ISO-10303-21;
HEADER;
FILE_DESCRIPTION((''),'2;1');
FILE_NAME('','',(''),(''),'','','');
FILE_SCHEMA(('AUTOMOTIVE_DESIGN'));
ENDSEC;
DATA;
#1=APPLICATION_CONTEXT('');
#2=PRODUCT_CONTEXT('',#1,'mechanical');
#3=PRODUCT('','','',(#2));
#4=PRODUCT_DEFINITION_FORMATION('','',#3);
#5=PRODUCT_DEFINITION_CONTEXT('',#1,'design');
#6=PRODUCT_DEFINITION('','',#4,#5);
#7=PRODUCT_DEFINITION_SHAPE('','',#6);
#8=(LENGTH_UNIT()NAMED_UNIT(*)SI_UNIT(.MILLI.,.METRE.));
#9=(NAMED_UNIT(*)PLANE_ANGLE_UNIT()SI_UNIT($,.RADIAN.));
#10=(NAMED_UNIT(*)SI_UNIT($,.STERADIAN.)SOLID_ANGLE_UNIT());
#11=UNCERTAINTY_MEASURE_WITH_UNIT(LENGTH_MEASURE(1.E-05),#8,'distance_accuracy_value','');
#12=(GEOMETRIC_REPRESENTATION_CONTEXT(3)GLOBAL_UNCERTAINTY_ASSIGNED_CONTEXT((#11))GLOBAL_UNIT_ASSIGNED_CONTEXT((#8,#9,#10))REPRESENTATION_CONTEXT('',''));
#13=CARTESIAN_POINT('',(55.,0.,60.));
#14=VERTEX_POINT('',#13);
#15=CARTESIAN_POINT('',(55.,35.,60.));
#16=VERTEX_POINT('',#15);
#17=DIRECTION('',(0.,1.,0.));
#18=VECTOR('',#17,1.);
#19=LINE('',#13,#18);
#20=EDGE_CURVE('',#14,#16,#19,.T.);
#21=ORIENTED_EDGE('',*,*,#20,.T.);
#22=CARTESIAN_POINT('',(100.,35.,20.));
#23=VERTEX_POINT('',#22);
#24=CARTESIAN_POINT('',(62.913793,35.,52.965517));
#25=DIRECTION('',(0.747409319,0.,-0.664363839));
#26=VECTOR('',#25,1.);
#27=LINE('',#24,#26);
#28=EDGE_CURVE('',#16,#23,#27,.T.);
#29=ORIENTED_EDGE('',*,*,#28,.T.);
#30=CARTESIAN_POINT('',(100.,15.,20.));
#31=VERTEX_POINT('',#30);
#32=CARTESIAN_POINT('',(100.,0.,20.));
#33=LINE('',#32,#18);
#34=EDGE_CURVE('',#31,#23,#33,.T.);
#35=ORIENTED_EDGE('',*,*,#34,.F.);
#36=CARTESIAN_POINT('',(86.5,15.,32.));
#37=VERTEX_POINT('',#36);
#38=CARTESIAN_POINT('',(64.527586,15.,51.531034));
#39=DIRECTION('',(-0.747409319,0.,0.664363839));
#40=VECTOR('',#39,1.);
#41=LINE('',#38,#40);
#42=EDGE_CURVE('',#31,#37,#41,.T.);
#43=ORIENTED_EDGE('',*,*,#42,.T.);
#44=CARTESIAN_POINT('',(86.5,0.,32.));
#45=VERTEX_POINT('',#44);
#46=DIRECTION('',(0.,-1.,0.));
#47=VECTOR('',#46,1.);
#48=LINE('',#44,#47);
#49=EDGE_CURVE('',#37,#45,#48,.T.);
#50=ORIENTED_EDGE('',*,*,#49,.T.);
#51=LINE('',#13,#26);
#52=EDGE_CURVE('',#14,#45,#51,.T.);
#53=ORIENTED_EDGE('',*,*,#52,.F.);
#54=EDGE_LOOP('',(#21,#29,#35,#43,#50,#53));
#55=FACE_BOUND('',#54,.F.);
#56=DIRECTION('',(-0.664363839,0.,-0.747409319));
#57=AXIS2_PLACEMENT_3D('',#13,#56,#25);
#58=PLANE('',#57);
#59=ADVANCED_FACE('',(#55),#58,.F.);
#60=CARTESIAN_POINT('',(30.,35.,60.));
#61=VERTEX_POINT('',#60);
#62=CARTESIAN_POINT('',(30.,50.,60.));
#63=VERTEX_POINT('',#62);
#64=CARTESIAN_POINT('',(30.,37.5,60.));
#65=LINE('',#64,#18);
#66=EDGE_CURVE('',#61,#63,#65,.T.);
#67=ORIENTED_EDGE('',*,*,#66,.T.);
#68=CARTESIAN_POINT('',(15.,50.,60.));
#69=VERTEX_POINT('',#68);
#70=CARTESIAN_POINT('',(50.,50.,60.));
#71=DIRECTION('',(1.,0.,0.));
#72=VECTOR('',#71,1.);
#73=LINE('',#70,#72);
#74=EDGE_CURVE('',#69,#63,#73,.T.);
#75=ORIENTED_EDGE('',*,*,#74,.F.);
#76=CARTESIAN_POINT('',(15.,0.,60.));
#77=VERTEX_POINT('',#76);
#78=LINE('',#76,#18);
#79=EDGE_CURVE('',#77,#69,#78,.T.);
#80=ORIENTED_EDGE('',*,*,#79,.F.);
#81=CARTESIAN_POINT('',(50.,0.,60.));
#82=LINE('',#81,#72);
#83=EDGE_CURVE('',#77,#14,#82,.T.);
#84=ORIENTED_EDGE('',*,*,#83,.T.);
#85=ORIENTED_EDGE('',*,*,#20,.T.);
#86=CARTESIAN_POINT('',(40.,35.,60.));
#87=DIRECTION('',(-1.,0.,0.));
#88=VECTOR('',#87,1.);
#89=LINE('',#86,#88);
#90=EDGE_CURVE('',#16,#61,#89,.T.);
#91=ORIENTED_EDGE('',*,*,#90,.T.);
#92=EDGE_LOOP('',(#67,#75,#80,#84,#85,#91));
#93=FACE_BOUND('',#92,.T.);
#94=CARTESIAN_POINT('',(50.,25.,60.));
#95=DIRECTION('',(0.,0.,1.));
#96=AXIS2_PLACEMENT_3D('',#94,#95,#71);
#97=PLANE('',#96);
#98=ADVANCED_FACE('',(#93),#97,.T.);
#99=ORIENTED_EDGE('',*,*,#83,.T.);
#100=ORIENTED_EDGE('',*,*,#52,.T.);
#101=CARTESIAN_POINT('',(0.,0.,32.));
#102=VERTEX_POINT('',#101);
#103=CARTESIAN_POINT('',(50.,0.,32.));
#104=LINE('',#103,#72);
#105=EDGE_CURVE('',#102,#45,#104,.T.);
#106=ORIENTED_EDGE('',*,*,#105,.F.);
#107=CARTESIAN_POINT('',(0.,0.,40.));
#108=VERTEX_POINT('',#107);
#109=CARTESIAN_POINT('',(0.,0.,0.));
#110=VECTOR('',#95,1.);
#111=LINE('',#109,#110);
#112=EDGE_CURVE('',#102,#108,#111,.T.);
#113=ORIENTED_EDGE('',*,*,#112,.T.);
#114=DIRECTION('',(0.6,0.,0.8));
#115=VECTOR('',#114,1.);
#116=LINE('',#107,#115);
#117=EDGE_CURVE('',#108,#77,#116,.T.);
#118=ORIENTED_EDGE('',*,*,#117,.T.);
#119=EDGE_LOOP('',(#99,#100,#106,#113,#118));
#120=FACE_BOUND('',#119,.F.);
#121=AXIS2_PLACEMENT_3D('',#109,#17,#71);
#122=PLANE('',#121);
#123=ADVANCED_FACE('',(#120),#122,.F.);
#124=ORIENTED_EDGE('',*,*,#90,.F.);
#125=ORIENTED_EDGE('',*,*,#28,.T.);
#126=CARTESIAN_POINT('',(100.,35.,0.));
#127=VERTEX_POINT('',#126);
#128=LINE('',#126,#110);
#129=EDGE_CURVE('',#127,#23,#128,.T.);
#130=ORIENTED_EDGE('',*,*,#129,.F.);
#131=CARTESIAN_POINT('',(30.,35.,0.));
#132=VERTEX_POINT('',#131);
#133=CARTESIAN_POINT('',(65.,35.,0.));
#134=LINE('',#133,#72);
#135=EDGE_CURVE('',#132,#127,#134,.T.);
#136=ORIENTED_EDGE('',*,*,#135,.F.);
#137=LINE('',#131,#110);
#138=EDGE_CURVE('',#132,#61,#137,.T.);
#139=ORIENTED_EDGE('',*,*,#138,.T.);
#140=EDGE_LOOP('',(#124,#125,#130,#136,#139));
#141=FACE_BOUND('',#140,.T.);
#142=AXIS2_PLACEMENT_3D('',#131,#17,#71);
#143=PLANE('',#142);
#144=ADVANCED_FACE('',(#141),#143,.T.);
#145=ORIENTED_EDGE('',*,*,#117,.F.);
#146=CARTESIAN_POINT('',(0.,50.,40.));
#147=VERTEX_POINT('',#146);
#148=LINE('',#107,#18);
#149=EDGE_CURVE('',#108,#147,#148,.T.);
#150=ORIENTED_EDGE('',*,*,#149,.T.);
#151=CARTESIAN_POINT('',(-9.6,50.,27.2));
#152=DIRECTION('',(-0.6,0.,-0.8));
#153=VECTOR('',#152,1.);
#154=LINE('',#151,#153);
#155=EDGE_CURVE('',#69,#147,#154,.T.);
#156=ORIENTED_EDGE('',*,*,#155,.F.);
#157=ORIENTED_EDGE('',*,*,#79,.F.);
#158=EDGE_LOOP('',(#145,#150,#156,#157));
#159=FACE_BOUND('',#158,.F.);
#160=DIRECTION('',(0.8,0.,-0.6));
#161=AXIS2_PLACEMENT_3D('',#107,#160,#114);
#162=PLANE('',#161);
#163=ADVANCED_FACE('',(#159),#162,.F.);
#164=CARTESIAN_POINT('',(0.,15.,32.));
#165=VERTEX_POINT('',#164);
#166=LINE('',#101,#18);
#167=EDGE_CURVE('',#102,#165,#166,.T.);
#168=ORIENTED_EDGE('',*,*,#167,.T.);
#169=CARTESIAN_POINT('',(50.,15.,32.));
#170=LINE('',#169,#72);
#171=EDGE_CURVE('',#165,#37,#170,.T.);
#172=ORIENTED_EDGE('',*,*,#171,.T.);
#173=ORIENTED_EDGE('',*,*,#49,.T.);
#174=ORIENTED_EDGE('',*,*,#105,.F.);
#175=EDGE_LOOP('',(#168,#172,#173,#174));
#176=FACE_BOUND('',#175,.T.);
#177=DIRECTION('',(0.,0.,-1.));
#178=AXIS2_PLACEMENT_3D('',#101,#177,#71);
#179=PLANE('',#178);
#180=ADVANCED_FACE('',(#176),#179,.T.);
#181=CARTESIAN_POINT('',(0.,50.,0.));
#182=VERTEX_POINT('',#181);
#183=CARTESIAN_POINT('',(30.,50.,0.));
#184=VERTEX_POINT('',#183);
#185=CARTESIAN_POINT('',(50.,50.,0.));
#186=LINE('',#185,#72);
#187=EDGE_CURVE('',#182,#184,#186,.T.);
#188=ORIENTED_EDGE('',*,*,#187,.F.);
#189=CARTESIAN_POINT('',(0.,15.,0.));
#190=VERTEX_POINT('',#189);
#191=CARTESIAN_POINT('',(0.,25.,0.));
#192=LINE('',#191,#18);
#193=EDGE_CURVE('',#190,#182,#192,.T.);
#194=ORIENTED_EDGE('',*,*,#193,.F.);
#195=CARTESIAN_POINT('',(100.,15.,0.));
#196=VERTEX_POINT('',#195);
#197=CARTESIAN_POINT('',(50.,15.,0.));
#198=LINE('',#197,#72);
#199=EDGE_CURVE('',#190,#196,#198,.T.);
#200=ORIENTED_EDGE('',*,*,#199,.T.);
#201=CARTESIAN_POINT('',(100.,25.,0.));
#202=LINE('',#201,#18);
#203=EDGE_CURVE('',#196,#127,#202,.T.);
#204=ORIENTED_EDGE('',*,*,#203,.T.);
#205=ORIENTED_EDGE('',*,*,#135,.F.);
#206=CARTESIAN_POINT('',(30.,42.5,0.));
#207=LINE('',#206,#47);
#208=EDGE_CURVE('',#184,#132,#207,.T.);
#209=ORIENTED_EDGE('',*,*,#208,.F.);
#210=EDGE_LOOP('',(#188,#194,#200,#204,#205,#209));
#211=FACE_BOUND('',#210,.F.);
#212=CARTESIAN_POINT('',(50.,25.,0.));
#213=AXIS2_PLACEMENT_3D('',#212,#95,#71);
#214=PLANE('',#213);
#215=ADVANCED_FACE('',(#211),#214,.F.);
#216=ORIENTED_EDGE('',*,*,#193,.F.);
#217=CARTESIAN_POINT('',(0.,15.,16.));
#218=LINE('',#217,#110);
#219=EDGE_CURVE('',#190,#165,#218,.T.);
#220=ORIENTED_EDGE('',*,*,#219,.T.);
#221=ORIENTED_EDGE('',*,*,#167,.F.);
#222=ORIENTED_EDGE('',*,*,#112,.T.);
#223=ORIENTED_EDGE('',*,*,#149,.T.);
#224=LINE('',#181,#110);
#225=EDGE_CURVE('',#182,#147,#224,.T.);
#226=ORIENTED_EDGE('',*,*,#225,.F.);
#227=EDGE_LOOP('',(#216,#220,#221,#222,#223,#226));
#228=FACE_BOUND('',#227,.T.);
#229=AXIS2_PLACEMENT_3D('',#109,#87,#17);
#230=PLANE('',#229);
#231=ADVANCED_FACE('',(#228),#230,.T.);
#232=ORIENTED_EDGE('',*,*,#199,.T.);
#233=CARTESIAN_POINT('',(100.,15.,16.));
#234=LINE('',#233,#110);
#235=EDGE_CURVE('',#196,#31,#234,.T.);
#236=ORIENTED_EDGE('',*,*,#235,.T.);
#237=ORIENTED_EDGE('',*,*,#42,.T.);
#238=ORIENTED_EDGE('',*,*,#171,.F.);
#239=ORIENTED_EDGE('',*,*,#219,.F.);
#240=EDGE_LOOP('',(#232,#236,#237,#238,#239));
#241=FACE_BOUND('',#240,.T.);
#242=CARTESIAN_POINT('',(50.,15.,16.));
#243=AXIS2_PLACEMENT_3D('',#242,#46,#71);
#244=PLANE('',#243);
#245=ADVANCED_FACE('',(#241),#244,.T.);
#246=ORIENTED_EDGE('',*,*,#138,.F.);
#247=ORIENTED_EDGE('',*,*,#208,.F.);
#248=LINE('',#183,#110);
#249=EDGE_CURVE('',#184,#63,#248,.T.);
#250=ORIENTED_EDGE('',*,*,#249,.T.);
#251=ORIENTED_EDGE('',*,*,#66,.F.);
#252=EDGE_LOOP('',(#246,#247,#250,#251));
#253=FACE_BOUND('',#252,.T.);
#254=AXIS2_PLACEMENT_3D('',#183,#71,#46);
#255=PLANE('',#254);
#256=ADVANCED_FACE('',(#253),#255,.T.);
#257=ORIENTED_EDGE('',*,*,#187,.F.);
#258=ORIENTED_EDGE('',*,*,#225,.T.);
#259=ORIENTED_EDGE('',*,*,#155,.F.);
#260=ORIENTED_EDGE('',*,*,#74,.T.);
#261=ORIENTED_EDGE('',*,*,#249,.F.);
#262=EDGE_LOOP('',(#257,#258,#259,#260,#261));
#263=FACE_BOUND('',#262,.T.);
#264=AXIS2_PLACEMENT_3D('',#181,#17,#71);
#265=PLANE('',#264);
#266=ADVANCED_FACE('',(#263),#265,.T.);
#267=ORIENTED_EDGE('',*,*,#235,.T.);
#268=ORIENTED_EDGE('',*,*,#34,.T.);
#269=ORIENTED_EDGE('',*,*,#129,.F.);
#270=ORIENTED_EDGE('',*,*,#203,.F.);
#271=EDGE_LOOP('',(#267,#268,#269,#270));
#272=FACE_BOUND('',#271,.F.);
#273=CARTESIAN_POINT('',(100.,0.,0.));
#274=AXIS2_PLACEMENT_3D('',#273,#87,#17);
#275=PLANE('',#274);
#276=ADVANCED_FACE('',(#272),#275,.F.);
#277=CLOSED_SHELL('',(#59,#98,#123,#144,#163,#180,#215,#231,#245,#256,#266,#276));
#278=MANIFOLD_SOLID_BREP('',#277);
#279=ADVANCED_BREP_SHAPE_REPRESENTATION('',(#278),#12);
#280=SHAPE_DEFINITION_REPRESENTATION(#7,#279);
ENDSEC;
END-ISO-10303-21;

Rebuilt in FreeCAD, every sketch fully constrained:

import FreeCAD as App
import Part
import Sketcher


def add_polygon(sketch, points):
    """Adds a closed chain of lines whose ends are joined by coincident constraints."""
    first, n = sketch.GeometryCount, len(points)
    for a, b in zip(points, points[1:] + points[:1]):
        sketch.addGeometry(Part.LineSegment(App.Vector(*a, 0), App.Vector(*b, 0)), False)
    for i in range(n):
        sketch.addConstraint(Sketcher.Constraint("Coincident", first + i, 2, first + (i + 1) % n, 1))

doc = App.newDocument("Part")
body = doc.addObject("PartDesign::Body", "Body")

# Sketch on XY plane
sketch1 = body.newObject("Sketcher::SketchObject", "Sketch")
sketch1.AttachmentSupport = (doc.getObject("XY_Plane"), [""])
sketch1.MapMode = "FlatFace"
add_polygon(sketch1, [(0, 50), (0, 0), (100, 0), (100, 50)])  # lines 0-3
sketch1.addConstraint([
    Sketcher.Constraint("Vertical", 0),
    Sketcher.Constraint("Horizontal", 1),
    Sketcher.Constraint("Vertical", 2),
    Sketcher.Constraint("Horizontal", 3),
    Sketcher.Constraint("Coincident", 0, 2, -1, 1),
    Sketcher.Constraint("DistanceX", 1, 1, 1, 2, 100.0),
    Sketcher.Constraint("DistanceY", 0, 2, 0, 1, 50.0),
])
pad1 = body.newObject("PartDesign::Pad", "Pad")
pad1.Profile = sketch1
pad1.Length = 60

# Sketch on XZ plane
sketch2 = body.newObject("Sketcher::SketchObject", "Sketch001")
sketch2.AttachmentSupport = (doc.getObject("XZ_Plane"), [""])
sketch2.MapMode = "FlatFace"
add_polygon(sketch2, [(15, 60), (0, 60), (0, 40)])  # lines 0-2
add_polygon(sketch2, [(55, 60), (100, 20), (100, 60)])  # lines 3-5
sketch2.addConstraint([
    Sketcher.Constraint("Horizontal", 0),
    Sketcher.Constraint("Vertical", 1),
    Sketcher.Constraint("Vertical", 4),
    Sketcher.Constraint("Horizontal", 5),
    Sketcher.Constraint("PointOnObject", 0, 2, -2),
    Sketcher.Constraint("Horizontal", 2, 2, 4, 2),
    Sketcher.Constraint("DistanceX", 0, 2, 0, 1, 15.0),
    Sketcher.Constraint("DistanceX", 5, 2, 5, 1, 45.0),
    Sketcher.Constraint("DistanceY", 1, 2, 1, 1, 20.0),
    Sketcher.Constraint("DistanceY", 4, 1, 4, 2, 40.0),
    Sketcher.Constraint("DistanceY", -1, 1, 0, 2, 60.0),
    Sketcher.Constraint("DistanceX", -1, 1, 3, 2, 100.0),
])
pocket1 = body.newObject("PartDesign::Pocket", "Pocket")
pocket1.Profile = sketch2
pocket1.Type = "ThroughAll"

# Sketch on XZ plane
sketch3 = body.newObject("Sketcher::SketchObject", "Sketch002")
sketch3.AttachmentSupport = (doc.getObject("XZ_Plane"), [""])
sketch3.MapMode = "FlatFace"
add_polygon(sketch3, [(0, 32), (0, 0), (100, 0), (100, 32)])  # lines 0-3
sketch3.addConstraint([
    Sketcher.Constraint("Vertical", 0),
    Sketcher.Constraint("Horizontal", 1),
    Sketcher.Constraint("Vertical", 2),
    Sketcher.Constraint("Horizontal", 3),
    Sketcher.Constraint("Coincident", 0, 2, -1, 1),
    Sketcher.Constraint("DistanceX", 1, 1, 1, 2, 100.0),
    Sketcher.Constraint("DistanceY", 0, 2, 0, 1, 32.0),
])
pocket2 = body.newObject("PartDesign::Pocket", "Pocket001")
pocket2.Profile = sketch3
pocket2.Length = 15

# Sketch on XY plane
sketch4 = body.newObject("Sketcher::SketchObject", "Sketch003")
sketch4.AttachmentSupport = (doc.getObject("XY_Plane"), [""])
sketch4.MapMode = "FlatFace"
add_polygon(sketch4, [(30, 35), (30, 50), (100, 50), (100, 35)])  # lines 0-3
sketch4.addConstraint([
    Sketcher.Constraint("Vertical", 0),
    Sketcher.Constraint("Horizontal", 1),
    Sketcher.Constraint("Vertical", 2),
    Sketcher.Constraint("Horizontal", 3),
    Sketcher.Constraint("DistanceX", 1, 1, 1, 2, 70.0),
    Sketcher.Constraint("DistanceY", 0, 1, 0, 2, 15.0),
    Sketcher.Constraint("DistanceX", -1, 1, 0, 2, 30.0),
    Sketcher.Constraint("DistanceY", -1, 1, 0, 2, 50.0),
])
pocket3 = body.newObject("PartDesign::Pocket", "Pocket002")
pocket3.Profile = sketch4
pocket3.Type = "ThroughAll"
pocket3.Reversed = True

doc.recompute()
